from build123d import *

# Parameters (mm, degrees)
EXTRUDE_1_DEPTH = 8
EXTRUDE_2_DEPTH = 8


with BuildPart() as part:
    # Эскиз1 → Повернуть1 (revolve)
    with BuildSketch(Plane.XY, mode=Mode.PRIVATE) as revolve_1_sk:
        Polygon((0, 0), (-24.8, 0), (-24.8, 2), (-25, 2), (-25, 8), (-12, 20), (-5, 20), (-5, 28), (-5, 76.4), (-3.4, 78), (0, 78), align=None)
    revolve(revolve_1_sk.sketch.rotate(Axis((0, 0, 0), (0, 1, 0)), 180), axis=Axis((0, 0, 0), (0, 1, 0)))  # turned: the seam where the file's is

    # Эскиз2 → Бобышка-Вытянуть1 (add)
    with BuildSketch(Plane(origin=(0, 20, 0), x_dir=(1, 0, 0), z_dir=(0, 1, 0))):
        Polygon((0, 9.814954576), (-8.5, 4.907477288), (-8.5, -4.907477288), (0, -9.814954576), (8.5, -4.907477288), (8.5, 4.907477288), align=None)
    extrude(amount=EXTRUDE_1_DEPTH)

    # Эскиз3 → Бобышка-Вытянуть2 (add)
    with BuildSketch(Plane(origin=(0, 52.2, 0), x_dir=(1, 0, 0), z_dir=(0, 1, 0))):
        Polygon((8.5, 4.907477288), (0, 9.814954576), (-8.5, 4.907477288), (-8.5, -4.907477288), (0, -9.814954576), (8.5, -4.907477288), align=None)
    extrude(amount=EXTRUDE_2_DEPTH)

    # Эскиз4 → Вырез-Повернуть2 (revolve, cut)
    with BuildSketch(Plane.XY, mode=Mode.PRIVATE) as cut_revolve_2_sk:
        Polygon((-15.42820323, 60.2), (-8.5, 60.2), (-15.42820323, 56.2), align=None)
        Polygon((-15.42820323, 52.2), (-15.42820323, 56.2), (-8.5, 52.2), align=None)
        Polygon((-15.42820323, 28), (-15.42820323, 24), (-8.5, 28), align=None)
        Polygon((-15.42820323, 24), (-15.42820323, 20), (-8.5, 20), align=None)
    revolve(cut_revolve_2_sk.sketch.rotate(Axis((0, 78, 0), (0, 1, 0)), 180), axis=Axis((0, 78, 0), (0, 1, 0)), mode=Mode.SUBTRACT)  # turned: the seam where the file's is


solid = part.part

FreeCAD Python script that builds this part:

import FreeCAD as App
import Part
import Sketcher

V = App.Vector
Q = App.Units.Quantity


def add_polygon(sketch, points):
    """Adds a closed chain of lines whose ends are joined by coincident constraints."""
    first, n = sketch.GeometryCount, len(points)
    for a, b in zip(points, points[1:] + points[:1]):
        sketch.addGeometry(Part.LineSegment(App.Vector(*a, 0), App.Vector(*b, 0)), False)
    for i in range(n):
        sketch.addConstraint(Sketcher.Constraint("Coincident", first + i, 2, first + (i + 1) % n, 1))

doc = App.newDocument("Part")
body = doc.addObject("PartDesign::Body", "Body")

# Sketch on XY plane
sketch1 = doc.addObject("Sketcher::SketchObject", "Sketch")
body.addObject(sketch1)
sketch1.AttachmentSupport = (doc.XY_Plane, [""])
sketch1.MapMode = "FlatFace"
add_polygon(sketch1, [(-24.8, 0), (0, 0), (0, 78), (-3.4, 78), (-5, 76.4), (-5, 20), (-12, 20), (-25, 8), (-25, 2), (-24.8, 2)])  # lines 0-9
sketch1.addConstraint([
    Sketcher.Constraint("Horizontal", 0),
    Sketcher.Constraint("Vertical", 1),
    Sketcher.Constraint("Horizontal", 2),
    Sketcher.Constraint("Vertical", 4),
    Sketcher.Constraint("Horizontal", 5),
    Sketcher.Constraint("Vertical", 7),
    Sketcher.Constraint("Horizontal", 8),
    Sketcher.Constraint("Vertical", 9),
    Sketcher.Constraint("Coincident", 0, 2, -1, 1),
    Sketcher.Constraint("DistanceX", 5, 2, 5, 1, 7.0),
    Sketcher.Constraint("DistanceY", 1, 1, 1, 2, 78.0),
    Sketcher.Constraint("DistanceY", 7, 2, 7, 1, 6.0),
    Sketcher.Constraint("DistanceY", 9, 2, 9, 1, 2.0),
    Sketcher.Constraint("Angle", 3, Q("-135 deg")),
    Sketcher.Constraint("DistanceX", 0, 1, 0, 2, 24.8),
    Sketcher.Constraint("DistanceX", 2, 2, 2, 1, 3.4),
    Sketcher.Constraint("DistanceX", 8, 1, 8, 2, 0.2),
    Sketcher.Constraint("DistanceY", 4, 2, 4, 1, 56.4),
    Sketcher.Constraint("DistanceX", 3, 2, -1, 1, 5.0),
])
revolution = doc.addObject("PartDesign::Revolution", "Revolution")
body.addObject(revolution)
revolution.Profile = sketch1
revolution.ReferenceAxis = (sketch1, ["V_Axis"])
revolution.Angle = 360

# Sketch on XZ plane
sketch2 = doc.addObject("Sketcher::SketchObject", "Sketch001")
body.addObject(sketch2)
sketch2.AttachmentSupport = (doc.XZ_Plane, [""])
sketch2.MapMode = "FlatFace"
sketch2.AttachmentOffset = App.Placement(V(0, 0, -20), App.Rotation())
add_polygon(sketch2, [(0, -9.814955), (-8.5, -4.907477), (-8.5, 4.907477), (0, 9.814955), (8.5, 4.907477), (8.5, -4.907477)])  # lines 0-5
sketch2.addConstraint([
    Sketcher.Constraint("Vertical", 1),
    Sketcher.Constraint("Vertical", 4),
    Sketcher.Constraint("Symmetric", 0, 2, 3, 2, -1, 1),
    Sketcher.Constraint("Symmetric", 2, 2, 5, 2, -1, 1),
    Sketcher.Constraint("PointOnObject", 2, 2, -2),
    Sketcher.Constraint("Parallel", 2, 5),
    Sketcher.Constraint("Horizontal", 1, 2, 3, 2),
    Sketcher.Constraint("Angle", 0, Q("150 deg")),
    Sketcher.Constraint("DistanceX", 1, 2, 3, 2, 17.0),
    Sketcher.Constraint("DistanceY", 1, 1, 1, 2, 9.814955),
])
pad1 = doc.addObject("PartDesign::Pad", "Pad")
body.addObject(pad1)
pad1.Profile = sketch2
pad1.Length = 8
pad1.Reversed = True

# Sketch on XZ plane
sketch3 = doc.addObject("Sketcher::SketchObject", "Sketch002")
body.addObject(sketch3)
sketch3.AttachmentSupport = (doc.XZ_Plane, [""])
sketch3.MapMode = "FlatFace"
sketch3.AttachmentOffset = App.Placement(V(0, 0, -52.2), App.Rotation())
add_polygon(sketch3, [(8.5, -4.907477), (0, -9.814955), (-8.5, -4.907477), (-8.5, 4.907477), (0, 9.814955), (8.5, 4.907477)])  # lines 0-5
sketch3.addConstraint([
    Sketcher.Constraint("Vertical", 2),
    Sketcher.Constraint("Vertical", 5),
    Sketcher.Constraint("Symmetric", 0, 2, 3, 2, -1, 1),
    Sketcher.Constraint("Symmetric", 1, 2, 4, 2, -1, 1),
    Sketcher.Constraint("PointOnObject", 0, 2, -2),
    Sketcher.Constraint("Parallel", 0, 3),
    Sketcher.Constraint("Horizontal", 2, 2, 4, 2),
    Sketcher.Constraint("Angle", 0, Q("-150 deg")),
    Sketcher.Constraint("DistanceX", 2, 2, 4, 2, 17.0),
    Sketcher.Constraint("DistanceY", 2, 1, 2, 2, 9.814955),
])
pad2 = doc.addObject("PartDesign::Pad", "Pad001")
body.addObject(pad2)
pad2.Profile = sketch3
pad2.Length = 8
pad2.Reversed = True

# Sketch on XY plane
sketch4 = doc.addObject("Sketcher::SketchObject", "Sketch003")
body.addObject(sketch4)
sketch4.AttachmentSupport = (doc.XY_Plane, [""])
sketch4.MapMode = "FlatFace"
add_polygon(sketch4, [(-8.5, 60.2), (-15.428203, 60.2), (-15.428203, 56.2)])  # lines 0-2
add_polygon(sketch4, [(-15.428203, 56.2), (-15.428203, 52.2), (-8.5, 52.2)])  # lines 3-5
add_polygon(sketch4, [(-15.428203, 28), (-15.428203, 24), (-8.5, 28)])  # lines 6-8
add_polygon(sketch4, [(-15.428203, 24), (-15.428203, 20), (-8.5, 20)])  # lines 9-11
sketch4.addConstraint([
    Sketcher.Constraint("Horizontal", 0),
    Sketcher.Constraint("Vertical", 1),
    Sketcher.Constraint("Vertical", 3),
    Sketcher.Constraint("Horizontal", 4),
    Sketcher.Constraint("Vertical", 6),
    Sketcher.Constraint("Horizontal", 8),
    Sketcher.Constraint("Vertical", 9),
    Sketcher.Constraint("Horizontal", 10),
    Sketcher.Constraint("Coincident", 5, 2, 1, 2),
    Sketcher.Constraint("Coincident", 11, 2, 6, 2),
    Sketcher.Constraint("Parallel", 2, 7),
    Sketcher.Constraint("Parallel", 5, 11),
    Sketcher.Constraint("Vertical", 2, 2, 4, 2),
    Sketcher.Constraint("Vertical", 5, 2, 6, 2),
    Sketcher.Constraint("Vertical", 4, 2, 7, 2),
    Sketcher.Constraint("Vertical", 7, 2, 10, 2),
    Sketcher.Constraint("Equal", 1, 3),
    Sketcher.Constraint("DistanceY", 1, 2, 1, 1, 4.0),
    Sketcher.Constraint("Angle", 2, Q("30 deg")),
    Sketcher.Constraint("DistanceY", -1, 1, 6, 2, 24.0),
    Sketcher.Constraint("DistanceY", -1, 1, 0, 2, 60.2),
    Sketcher.Constraint("DistanceX", 2, 2, -1, 1, 8.5),
])
groove = doc.addObject("PartDesign::Groove", "Groove")
body.addObject(groove)
groove.Profile = sketch4
groove.ReferenceAxis = (sketch4, ["V_Axis"])
groove.Angle = 360

doc.recompute()
